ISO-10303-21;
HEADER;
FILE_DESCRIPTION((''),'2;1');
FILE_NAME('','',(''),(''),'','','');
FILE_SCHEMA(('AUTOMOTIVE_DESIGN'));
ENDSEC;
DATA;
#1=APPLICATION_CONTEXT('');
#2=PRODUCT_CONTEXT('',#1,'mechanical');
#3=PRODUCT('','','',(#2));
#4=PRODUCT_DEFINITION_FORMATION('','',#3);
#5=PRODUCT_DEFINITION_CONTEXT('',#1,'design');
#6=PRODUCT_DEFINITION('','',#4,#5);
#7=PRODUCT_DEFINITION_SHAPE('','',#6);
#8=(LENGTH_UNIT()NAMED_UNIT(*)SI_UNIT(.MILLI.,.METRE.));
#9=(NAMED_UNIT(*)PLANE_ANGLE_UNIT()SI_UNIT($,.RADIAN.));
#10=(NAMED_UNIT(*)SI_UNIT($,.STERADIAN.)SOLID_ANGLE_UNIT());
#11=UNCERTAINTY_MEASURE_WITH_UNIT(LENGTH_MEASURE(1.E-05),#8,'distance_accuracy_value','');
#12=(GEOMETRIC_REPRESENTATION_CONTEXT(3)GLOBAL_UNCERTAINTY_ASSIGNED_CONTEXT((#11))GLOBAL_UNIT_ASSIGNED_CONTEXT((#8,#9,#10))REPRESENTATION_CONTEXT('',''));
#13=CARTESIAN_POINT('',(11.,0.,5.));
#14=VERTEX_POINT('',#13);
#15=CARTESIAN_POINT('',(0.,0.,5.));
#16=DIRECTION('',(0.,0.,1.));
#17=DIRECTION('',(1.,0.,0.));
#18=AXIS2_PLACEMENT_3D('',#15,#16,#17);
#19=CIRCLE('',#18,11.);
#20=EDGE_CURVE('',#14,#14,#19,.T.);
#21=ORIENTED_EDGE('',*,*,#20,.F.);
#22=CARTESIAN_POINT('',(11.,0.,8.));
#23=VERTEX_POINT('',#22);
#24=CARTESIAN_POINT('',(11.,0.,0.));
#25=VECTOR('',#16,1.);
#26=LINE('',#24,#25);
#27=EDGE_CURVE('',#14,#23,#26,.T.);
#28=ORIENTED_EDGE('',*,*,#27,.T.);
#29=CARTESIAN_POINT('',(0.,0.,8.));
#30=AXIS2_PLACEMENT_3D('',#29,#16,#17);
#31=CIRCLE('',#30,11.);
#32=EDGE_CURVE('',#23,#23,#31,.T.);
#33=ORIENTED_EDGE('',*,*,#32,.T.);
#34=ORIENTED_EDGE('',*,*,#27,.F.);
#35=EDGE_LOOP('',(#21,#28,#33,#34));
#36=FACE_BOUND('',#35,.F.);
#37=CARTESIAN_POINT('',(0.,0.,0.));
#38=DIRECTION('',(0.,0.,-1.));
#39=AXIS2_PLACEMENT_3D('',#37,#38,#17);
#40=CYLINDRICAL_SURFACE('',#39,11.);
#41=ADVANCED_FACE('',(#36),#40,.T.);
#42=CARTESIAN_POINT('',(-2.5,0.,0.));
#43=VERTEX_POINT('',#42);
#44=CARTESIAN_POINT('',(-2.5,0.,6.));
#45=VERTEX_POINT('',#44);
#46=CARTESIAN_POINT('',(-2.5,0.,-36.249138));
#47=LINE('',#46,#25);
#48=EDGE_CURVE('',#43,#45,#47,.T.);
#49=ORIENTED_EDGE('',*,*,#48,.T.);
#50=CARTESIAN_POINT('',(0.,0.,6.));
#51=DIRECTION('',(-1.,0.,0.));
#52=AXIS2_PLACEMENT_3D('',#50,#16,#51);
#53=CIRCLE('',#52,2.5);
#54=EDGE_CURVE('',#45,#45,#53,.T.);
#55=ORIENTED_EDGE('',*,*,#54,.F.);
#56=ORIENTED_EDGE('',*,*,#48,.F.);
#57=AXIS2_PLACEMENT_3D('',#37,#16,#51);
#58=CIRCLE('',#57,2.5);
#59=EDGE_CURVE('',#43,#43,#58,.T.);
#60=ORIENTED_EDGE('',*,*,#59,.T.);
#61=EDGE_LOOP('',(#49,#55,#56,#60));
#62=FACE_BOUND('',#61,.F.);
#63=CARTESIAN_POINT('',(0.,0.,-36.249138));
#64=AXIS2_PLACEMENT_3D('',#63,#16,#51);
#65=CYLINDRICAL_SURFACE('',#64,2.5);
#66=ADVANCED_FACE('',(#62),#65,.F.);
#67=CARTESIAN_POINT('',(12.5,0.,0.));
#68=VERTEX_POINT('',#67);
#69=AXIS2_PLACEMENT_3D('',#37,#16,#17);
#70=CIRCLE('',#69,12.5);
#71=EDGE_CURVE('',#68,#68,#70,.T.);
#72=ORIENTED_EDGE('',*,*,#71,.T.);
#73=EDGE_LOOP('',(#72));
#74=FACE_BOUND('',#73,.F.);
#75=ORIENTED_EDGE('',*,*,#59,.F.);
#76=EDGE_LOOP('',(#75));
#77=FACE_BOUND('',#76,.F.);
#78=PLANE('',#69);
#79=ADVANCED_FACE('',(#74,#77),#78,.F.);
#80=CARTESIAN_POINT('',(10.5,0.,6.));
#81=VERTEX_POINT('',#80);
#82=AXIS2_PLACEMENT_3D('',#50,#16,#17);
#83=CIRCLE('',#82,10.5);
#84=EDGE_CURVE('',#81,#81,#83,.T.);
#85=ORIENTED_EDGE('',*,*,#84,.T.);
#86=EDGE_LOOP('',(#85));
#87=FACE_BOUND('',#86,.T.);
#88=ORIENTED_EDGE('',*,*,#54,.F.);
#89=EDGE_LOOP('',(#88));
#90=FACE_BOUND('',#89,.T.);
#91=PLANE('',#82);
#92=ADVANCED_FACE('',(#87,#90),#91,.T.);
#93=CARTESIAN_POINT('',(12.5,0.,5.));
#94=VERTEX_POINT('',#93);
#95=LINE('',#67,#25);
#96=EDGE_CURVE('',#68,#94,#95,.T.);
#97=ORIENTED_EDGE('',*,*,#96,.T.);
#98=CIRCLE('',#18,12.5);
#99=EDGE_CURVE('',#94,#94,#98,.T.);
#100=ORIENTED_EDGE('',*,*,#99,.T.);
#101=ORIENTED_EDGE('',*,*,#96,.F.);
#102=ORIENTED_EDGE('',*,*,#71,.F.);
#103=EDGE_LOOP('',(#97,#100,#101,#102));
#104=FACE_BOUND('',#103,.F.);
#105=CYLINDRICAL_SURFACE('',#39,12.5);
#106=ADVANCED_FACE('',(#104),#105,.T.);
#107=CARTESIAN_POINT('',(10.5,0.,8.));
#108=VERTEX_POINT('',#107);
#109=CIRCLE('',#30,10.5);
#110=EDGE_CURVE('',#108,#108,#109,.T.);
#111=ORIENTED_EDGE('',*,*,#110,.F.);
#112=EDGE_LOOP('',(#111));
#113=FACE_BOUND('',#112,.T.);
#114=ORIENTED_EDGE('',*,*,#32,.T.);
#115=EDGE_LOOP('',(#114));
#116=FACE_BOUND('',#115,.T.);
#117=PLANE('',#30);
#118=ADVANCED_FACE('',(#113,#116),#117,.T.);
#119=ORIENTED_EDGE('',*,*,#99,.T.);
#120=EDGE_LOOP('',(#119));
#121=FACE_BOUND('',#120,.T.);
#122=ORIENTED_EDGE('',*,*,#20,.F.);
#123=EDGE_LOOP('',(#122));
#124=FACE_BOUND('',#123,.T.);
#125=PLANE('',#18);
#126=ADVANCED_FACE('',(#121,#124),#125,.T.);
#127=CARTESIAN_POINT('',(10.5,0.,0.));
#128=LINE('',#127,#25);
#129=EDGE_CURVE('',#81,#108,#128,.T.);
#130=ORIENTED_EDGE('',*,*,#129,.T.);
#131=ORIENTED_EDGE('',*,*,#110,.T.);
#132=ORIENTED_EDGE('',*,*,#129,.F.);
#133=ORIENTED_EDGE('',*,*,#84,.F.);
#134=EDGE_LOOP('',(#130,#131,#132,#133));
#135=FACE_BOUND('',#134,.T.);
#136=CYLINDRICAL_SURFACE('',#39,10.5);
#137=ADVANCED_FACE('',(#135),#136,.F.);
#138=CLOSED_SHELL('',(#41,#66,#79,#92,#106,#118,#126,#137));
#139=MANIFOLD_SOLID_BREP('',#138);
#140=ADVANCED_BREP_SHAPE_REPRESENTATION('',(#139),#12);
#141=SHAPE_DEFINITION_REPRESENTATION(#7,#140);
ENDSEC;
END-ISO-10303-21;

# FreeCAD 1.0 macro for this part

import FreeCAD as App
import Part
import Sketcher

doc = App.newDocument("Part")
params = doc.addObject("Spreadsheet::Sheet", "Params")
for row, (alias, value) in enumerate([
    ("sketch1_diameter", "25 mm"),
    ("sketch1_diameter2", "22 mm"),
    ("pad1_length", "5 mm"),
    ("sketch2_diameter", "22 mm"),
    ("sketch2_diameter2", "21 mm"),
    ("pad2_length", "8 mm"),
    ("sketch3_diameter", "21 mm"),
    ("pad3_length", "6 mm"),
    ("sketch4_diameter", "5 mm"),
    ("hole_diameter", "5 mm"),
], start=1):
    params.set(f"A{row}", alias)
    params.set(f"B{row}", "=" + value)
    params.setAlias(f"B{row}", alias)

body = doc.addObject("PartDesign::Body", "Body")

# Sketch on XY plane
sketch1 = body.newObject("Sketcher::SketchObject", "Sketch")
sketch1.AttachmentSupport = (doc.getObject("XY_Plane"), [""])
sketch1.MapMode = "FlatFace"
sketch1.addGeometry([
    Part.Circle(App.Vector(0, 0, 0), App.Vector(0, 0, 1), 12),
    Part.Circle(App.Vector(0, 0, 0), App.Vector(0, 0, 1), 11),
], False)
sketch1.addConstraint([
    Sketcher.Constraint("Coincident", 0, 3, -1, 1),
    Sketcher.Constraint("Coincident", 1, 3, -1, 1),
    Sketcher.Constraint("Diameter", 0, 25.0),
    Sketcher.Constraint("Diameter", 1, 22.0),
])
sketch1.setExpression("Constraints[2]", "Params.sketch1_diameter")
sketch1.setExpression("Constraints[3]", "Params.sketch1_diameter2")
pad1 = body.newObject("PartDesign::Pad", "Pad")
pad1.Profile = sketch1
pad1.setExpression("Length", "Params.pad1_length")

# Sketch on XY plane
sketch2 = body.newObject("Sketcher::SketchObject", "Sketch001")
sketch2.AttachmentSupport = (doc.getObject("XY_Plane"), [""])
sketch2.MapMode = "FlatFace"
sketch2.addGeometry([
    Part.Circle(App.Vector(0, 0, 0), App.Vector(0, 0, 1), 11),
    Part.Circle(App.Vector(0, 0, 0), App.Vector(0, 0, 1), 10),
], False)
sketch2.addConstraint([
    Sketcher.Constraint("Coincident", 0, 3, -1, 1),
    Sketcher.Constraint("Coincident", 1, 3, -1, 1),
    Sketcher.Constraint("Diameter", 0, 22.0),
    Sketcher.Constraint("Diameter", 1, 21.0),
])
sketch2.setExpression("Constraints[2]", "Params.sketch2_diameter")
sketch2.setExpression("Constraints[3]", "Params.sketch2_diameter2")
pad2 = body.newObject("PartDesign::Pad", "Pad001")
pad2.Profile = sketch2
pad2.setExpression("Length", "Params.pad2_length")

# Sketch on XY plane
sketch3 = body.newObject("Sketcher::SketchObject", "Sketch002")
sketch3.AttachmentSupport = (doc.getObject("XY_Plane"), [""])
sketch3.MapMode = "FlatFace"
sketch3.addGeometry(Part.Circle(App.Vector(0, 0, 0), App.Vector(0, 0, 1), 10), False)
sketch3.addConstraint([
    Sketcher.Constraint("Coincident", 0, 3, -1, 1),
    Sketcher.Constraint("Diameter", 0, 21.0),
])
sketch3.setExpression("Constraints[1]", "Params.sketch3_diameter")
pad3 = body.newObject("PartDesign::Pad", "Pad002")
pad3.Profile = sketch3
pad3.setExpression("Length", "Params.pad3_length")

# Sketch on XY plane
sketch4 = body.newObject("Sketcher::SketchObject", "Sketch003")
sketch4.AttachmentSupport = (doc.getObject("XY_Plane"), [""])
sketch4.MapMode = "FlatFace"
sketch4.addGeometry(Part.Circle(App.Vector(0, 0, 0), App.Vector(0, 0, 1), 2.5), False)
sketch4.addConstraint([
    Sketcher.Constraint("Coincident", 0, 3, -1, 1),
    Sketcher.Constraint("Diameter", 0, 5.0),
])
sketch4.setExpression("Constraints[1]", "Params.sketch4_diameter")
doc.recompute()
hole = body.newObject("PartDesign::Hole", "Hole")
hole.Profile = sketch4
hole.ThreadType = "None"
hole.setExpression("Diameter", "Params.hole_diameter")
hole.DepthType = "ThroughAll"
hole.Reversed = True

doc.recompute()
